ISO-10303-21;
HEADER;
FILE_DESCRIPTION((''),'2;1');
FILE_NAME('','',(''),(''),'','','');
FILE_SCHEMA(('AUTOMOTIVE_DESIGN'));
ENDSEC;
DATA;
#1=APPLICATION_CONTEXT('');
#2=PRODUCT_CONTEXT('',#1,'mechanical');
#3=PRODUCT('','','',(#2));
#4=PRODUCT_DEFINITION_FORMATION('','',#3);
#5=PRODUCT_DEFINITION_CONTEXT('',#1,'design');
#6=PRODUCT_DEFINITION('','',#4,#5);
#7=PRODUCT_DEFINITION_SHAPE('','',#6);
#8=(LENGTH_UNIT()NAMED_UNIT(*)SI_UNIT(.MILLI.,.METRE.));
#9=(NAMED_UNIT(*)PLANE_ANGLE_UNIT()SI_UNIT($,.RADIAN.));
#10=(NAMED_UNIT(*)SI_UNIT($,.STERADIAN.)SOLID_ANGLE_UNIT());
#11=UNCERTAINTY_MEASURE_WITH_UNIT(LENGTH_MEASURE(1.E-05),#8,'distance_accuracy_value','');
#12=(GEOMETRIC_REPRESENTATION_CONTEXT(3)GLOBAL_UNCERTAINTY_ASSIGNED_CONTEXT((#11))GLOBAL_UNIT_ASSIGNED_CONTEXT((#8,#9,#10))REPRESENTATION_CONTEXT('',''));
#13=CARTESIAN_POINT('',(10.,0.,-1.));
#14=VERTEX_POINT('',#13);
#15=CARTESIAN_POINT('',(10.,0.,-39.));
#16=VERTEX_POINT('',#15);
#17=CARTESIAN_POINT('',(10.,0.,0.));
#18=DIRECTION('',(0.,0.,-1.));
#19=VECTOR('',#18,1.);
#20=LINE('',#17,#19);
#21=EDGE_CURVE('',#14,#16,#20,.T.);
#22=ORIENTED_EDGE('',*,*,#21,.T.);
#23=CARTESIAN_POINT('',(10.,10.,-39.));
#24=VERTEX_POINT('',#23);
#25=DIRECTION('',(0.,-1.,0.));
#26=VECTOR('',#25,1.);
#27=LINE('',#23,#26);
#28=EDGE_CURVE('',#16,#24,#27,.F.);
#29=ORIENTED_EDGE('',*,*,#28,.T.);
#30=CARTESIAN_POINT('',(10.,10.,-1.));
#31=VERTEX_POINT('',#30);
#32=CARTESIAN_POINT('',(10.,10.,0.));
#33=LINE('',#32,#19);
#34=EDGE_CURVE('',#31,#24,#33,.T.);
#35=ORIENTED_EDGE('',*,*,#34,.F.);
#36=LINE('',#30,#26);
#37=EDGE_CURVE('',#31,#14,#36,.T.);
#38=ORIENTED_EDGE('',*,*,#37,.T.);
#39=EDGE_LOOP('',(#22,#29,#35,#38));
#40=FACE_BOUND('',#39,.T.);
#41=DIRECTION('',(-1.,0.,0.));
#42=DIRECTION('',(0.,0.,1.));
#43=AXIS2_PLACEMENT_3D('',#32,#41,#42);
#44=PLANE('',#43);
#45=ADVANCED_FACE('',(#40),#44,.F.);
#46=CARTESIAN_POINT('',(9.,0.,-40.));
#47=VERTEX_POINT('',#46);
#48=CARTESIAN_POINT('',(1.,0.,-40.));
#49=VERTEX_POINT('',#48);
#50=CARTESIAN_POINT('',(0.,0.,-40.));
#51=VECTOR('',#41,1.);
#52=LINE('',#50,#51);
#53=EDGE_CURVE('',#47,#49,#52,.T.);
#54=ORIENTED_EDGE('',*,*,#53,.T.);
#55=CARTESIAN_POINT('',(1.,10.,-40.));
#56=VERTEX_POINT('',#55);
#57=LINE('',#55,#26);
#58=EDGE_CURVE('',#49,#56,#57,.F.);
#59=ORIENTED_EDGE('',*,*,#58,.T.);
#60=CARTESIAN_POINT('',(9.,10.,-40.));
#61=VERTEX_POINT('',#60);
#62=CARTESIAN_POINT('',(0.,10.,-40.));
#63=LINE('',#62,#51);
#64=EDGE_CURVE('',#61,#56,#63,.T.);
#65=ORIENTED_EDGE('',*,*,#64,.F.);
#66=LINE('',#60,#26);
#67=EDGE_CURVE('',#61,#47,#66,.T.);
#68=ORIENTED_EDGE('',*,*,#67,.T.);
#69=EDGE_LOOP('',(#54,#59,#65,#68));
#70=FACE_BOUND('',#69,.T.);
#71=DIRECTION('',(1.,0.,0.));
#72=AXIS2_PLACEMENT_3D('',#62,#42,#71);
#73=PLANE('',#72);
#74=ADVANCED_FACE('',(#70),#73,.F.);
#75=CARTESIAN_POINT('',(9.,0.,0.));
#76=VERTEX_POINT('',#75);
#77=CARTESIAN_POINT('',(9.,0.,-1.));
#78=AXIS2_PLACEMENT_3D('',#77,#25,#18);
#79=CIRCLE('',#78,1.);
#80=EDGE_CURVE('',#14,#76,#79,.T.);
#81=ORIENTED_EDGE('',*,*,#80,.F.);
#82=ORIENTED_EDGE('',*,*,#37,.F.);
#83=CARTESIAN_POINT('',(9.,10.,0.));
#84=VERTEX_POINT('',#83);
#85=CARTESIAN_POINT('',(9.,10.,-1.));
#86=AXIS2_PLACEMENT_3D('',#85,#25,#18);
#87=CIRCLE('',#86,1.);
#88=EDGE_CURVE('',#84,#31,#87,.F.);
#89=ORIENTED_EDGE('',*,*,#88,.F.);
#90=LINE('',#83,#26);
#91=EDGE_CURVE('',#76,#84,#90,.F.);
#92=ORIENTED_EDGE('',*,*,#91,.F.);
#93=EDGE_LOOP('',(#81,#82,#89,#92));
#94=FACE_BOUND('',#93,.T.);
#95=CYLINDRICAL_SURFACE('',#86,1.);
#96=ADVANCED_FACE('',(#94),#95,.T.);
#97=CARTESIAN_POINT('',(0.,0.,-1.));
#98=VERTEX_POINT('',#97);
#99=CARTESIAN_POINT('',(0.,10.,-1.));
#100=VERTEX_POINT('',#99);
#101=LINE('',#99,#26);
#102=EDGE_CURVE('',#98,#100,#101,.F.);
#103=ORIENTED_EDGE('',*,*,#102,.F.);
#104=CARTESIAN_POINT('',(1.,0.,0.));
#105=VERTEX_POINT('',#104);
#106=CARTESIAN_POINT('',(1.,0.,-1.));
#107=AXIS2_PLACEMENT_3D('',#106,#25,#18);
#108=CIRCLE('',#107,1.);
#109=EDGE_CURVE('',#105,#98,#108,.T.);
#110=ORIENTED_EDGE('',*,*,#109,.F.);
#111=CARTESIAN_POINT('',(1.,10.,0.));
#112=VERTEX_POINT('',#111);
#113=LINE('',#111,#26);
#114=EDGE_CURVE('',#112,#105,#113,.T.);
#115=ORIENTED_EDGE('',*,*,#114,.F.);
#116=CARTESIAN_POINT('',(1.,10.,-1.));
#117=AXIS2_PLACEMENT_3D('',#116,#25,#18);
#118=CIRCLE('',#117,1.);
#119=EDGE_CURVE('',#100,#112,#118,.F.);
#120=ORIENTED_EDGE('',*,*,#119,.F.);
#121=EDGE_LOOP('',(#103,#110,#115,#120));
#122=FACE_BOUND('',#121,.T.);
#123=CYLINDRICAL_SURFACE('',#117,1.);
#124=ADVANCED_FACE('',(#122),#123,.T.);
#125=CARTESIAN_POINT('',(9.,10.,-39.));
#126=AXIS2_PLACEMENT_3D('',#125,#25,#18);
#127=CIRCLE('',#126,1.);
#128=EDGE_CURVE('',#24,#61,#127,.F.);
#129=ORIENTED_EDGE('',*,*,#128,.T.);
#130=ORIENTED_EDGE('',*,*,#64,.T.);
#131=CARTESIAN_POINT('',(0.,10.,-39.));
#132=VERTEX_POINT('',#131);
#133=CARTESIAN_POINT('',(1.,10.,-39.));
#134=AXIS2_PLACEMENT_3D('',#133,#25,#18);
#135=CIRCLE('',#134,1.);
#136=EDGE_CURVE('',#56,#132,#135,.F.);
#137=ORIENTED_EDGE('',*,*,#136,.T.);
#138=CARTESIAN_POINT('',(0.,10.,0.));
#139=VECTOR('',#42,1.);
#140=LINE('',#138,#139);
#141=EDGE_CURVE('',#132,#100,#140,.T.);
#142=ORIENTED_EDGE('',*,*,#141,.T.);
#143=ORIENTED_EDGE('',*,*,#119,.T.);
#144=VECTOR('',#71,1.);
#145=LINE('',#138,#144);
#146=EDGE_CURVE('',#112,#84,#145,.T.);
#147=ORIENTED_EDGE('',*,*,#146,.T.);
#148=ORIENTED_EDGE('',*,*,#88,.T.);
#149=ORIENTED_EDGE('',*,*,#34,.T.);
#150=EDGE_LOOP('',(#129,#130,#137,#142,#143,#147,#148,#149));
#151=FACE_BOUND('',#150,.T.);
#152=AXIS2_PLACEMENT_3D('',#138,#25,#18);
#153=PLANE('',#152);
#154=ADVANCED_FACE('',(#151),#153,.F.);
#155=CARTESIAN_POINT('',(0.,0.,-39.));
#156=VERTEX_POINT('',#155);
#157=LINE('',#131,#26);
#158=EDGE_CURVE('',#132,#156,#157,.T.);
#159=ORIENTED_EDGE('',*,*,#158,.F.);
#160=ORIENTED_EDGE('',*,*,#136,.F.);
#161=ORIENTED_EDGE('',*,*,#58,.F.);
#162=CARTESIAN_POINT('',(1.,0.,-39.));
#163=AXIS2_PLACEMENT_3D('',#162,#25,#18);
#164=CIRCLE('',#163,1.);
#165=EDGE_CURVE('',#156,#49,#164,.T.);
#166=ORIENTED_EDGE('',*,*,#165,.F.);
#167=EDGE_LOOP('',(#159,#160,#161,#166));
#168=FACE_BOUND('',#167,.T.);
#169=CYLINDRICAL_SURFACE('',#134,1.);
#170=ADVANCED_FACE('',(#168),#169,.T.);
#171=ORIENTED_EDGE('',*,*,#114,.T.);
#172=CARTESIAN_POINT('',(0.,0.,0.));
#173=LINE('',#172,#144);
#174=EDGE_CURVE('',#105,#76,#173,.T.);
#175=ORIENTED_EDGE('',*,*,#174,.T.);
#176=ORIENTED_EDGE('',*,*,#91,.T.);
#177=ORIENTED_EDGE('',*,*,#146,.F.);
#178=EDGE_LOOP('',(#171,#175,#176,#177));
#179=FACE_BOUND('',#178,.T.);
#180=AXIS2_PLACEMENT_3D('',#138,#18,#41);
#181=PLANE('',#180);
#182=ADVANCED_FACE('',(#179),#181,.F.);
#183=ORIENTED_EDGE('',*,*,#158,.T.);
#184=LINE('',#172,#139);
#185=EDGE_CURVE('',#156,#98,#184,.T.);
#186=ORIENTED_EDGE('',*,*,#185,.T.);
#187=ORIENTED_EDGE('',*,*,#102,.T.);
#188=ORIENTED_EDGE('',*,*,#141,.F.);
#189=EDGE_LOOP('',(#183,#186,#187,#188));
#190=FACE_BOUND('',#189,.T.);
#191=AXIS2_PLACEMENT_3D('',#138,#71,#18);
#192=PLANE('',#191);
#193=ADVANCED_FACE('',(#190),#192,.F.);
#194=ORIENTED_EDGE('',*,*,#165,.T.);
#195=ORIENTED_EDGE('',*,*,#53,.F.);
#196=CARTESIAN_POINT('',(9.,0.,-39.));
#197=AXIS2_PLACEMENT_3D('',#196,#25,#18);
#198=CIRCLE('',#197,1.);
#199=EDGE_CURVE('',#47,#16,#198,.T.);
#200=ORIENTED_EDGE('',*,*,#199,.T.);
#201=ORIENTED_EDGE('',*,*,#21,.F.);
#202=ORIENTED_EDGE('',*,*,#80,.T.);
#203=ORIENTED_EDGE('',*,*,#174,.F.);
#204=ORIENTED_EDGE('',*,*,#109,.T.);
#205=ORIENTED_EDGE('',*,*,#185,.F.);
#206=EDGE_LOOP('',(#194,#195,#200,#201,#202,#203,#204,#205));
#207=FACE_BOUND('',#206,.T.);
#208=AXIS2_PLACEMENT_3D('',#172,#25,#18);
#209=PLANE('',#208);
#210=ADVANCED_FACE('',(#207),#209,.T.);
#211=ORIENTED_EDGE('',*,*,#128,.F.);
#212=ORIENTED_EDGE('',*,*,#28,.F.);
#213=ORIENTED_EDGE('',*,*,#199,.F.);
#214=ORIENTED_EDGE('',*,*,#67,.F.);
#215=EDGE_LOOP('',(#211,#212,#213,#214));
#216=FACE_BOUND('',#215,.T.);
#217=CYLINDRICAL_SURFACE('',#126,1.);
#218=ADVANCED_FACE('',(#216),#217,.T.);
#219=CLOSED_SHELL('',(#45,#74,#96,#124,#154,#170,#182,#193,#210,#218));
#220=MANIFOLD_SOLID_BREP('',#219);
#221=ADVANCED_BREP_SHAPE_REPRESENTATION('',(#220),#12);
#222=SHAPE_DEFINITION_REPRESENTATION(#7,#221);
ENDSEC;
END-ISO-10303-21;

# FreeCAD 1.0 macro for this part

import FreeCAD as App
import Part
import Sketcher
from FreeCAD import Vector
Q = App.Units.Quantity


def edges_at(feature, points):
    """Names of the edges that pass closest to the given points."""
    edges = feature.Shape.Edges
    near = lambda p: min(range(len(edges)), key=lambda i: edges[i].distToShape(Part.Vertex(*p))[0])
    return sorted({f"Edge{near(p) + 1}" for p in points})


def add_polygon(sketch, points):
    """Adds a closed chain of lines whose ends are joined by coincident constraints."""
    first, n = sketch.GeometryCount, len(points)
    for a, b in zip(points, points[1:] + points[:1]):
        sketch.addGeometry(Part.LineSegment(App.Vector(*a, 0), App.Vector(*b, 0)), False)
    for i in range(n):
        sketch.addConstraint(Sketcher.Constraint("Coincident", first + i, 2, first + (i + 1) % n, 1))

doc = App.newDocument("Part")
body = doc.addObject("PartDesign::Body", "Body")

# Sketch on XZ plane
sketch1 = body.newObject("Sketcher::SketchObject", "Sketch")
sketch1.AttachmentSupport = (doc.getObject("XZ_Plane"), [""])
sketch1.MapMode = "FlatFace"
add_polygon(sketch1, [(0, -40), (0, 0), (10, 0), (10, -40)])  # lines 0-3
sketch1.addConstraint([
    Sketcher.Constraint("Vertical", 0),
    Sketcher.Constraint("Horizontal", 1),
    Sketcher.Constraint("Vertical", 2),
    Sketcher.Constraint("Horizontal", 3),
    Sketcher.Constraint("Coincident", 0, 2, -1, 1),
    Sketcher.Constraint("DistanceX", 1, 1, 1, 2, Q("10 mm")),
    Sketcher.Constraint("DistanceY", 0, 1, 0, 2, Q("40 mm")),
])
pad1 = body.newObject("PartDesign::Pad", "Pad")
pad1.Profile = sketch1
pad1.Length = 10
pad1.Reversed = True
doc.recompute()

fillet = body.newObject("PartDesign::Fillet", "Fillet")
fillet.Base = (pad1, edges_at(pad1, [
    (0, 5, -40),
    (10, 5, -40),
    (10, 5, 0),
    (0, 5, 0),
]))
fillet.Radius = 1

doc.recompute()
